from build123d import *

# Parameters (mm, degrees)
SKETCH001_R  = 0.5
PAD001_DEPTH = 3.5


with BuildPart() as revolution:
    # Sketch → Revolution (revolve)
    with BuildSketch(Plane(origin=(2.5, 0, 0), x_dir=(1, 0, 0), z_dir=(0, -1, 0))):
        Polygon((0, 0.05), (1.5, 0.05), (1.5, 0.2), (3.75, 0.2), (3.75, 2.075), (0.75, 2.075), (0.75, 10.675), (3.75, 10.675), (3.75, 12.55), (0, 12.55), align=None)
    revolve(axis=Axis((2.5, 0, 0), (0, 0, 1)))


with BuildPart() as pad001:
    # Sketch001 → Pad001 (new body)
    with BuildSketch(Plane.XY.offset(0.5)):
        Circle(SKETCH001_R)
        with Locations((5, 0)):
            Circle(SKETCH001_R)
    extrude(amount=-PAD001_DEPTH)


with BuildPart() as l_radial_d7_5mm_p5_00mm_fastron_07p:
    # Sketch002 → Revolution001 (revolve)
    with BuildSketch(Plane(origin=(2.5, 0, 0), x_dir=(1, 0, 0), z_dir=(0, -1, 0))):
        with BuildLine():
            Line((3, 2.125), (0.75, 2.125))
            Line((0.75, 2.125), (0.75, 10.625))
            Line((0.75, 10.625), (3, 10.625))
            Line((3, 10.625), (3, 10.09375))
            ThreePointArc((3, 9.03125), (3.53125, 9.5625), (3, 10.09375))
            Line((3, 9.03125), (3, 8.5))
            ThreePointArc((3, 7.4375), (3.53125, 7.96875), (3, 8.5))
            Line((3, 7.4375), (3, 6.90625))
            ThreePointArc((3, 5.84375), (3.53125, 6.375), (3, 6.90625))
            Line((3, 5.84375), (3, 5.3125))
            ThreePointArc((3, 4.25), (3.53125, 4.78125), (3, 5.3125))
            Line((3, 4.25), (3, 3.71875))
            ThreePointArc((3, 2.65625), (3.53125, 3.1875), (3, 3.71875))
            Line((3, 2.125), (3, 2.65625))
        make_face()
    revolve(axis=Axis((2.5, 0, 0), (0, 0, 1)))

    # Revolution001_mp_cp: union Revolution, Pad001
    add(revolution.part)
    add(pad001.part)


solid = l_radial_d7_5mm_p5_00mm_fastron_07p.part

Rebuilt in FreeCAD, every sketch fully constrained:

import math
import FreeCAD as App
import Part
import Sketcher
Q = App.Units.Quantity

doc = App.newDocument("Part")
body = doc.addObject("PartDesign::Body", "Body")

sketch1 = body.newObject("Sketcher::SketchObject", "Sketch")
sketch1.AttachmentSupport = (doc.getObject("XZ_Plane"), [""])
sketch1.MapMode = "FlatFace"
sketch1.addGeometry([
    Part.LineSegment(App.Vector(2.5, 0.05, 0), App.Vector(4, 0.05, 0)),
    Part.LineSegment(App.Vector(4, 0.05, 0), App.Vector(4, 0.2, 0)),
    Part.LineSegment(App.Vector(4, 0.2, 0), App.Vector(6.25, 0.2, 0)),
    Part.LineSegment(App.Vector(6.25, 0.2, 0), App.Vector(6.25, 2.075, 0)),
    Part.LineSegment(App.Vector(6.25, 2.075, 0), App.Vector(3.25, 2.075, 0)),
    Part.LineSegment(App.Vector(3.25, 2.075, 0), App.Vector(3.25, 10.675, 0)),
    Part.LineSegment(App.Vector(3.25, 10.675, 0), App.Vector(6.25, 10.675, 0)),
    Part.LineSegment(App.Vector(6.25, 10.675, 0), App.Vector(6.25, 12.55, 0)),
    Part.LineSegment(App.Vector(6.25, 12.55, 0), App.Vector(2.5, 12.55, 0)),
    Part.LineSegment(App.Vector(2.5, 12.55, 0), App.Vector(2.5, 0.05, 0)),
], False)
sketch1.addGeometry(Part.LineSegment(App.Vector(2.5, 0.05, 0), App.Vector(2.5, 12.55, 0)), True)
sketch1.addConstraint([
    Sketcher.Constraint("Coincident", 0, 2, 1, 1),
    Sketcher.Constraint("Coincident", 1, 2, 2, 1),
    Sketcher.Constraint("Coincident", 2, 2, 3, 1),
    Sketcher.Constraint("Coincident", 3, 2, 4, 1),
    Sketcher.Constraint("Coincident", 4, 2, 5, 1),
    Sketcher.Constraint("Coincident", 5, 2, 6, 1),
    Sketcher.Constraint("Coincident", 6, 2, 7, 1),
    Sketcher.Constraint("Coincident", 7, 2, 8, 1),
    Sketcher.Constraint("Coincident", 8, 2, 9, 1),
    Sketcher.Constraint("Coincident", 9, 2, 0, 1),
    Sketcher.Constraint("Horizontal", 0),
    Sketcher.Constraint("Vertical", 1),
    Sketcher.Constraint("Horizontal", 2),
    Sketcher.Constraint("Vertical", 3),
    Sketcher.Constraint("Horizontal", 4),
    Sketcher.Constraint("Vertical", 5),
    Sketcher.Constraint("Horizontal", 6),
    Sketcher.Constraint("Vertical", 7),
    Sketcher.Constraint("Horizontal", 8),
    Sketcher.Constraint("Vertical", 9),
    Sketcher.Constraint("Vertical", 10),
    Sketcher.Constraint("Coincident", 10, 1, 9, 2),
    Sketcher.Constraint("Horizontal", 7, 2, 10, 2),
    Sketcher.Constraint("Vertical", 3, 2, 6, 2),
    Sketcher.Constraint("Equal", 3, 7),
    Sketcher.Constraint("DistanceX", 4, 2, 4, 1, Q("3 mm")),
    Sketcher.Constraint("DistanceX", 0, 1, 0, 2, Q("1.5 mm")),
    Sketcher.Constraint("DistanceY", 5, 1, 5, 2, Q("8.6 mm")),
    Sketcher.Constraint("DistanceY", 9, 2, 9, 1, Q("12.5 mm")),
    Sketcher.Constraint("DistanceX", -1, 1, 0, 2, Q("4 mm")),
    Sketcher.Constraint("DistanceX", 2, 1, 2, 2, Q("2.25 mm")),
    Sketcher.Constraint("DistanceY", 1, 1, 1, 2, Q("0.15 mm")),
    Sketcher.Constraint("DistanceY", -1, 1, 1, 2, Q("0.2 mm")),
])
revolution = body.newObject("PartDesign::Revolution", "Revolution")
revolution.Profile = sketch1
revolution.ReferenceAxis = (sketch1, ["Axis0"])
revolution.Angle = 360
body2 = doc.addObject("PartDesign::Body", "Body001")
body2.AllowCompound = True

sketch2 = body2.newObject("Sketcher::SketchObject", "Sketch001")
sketch2.AttachmentSupport = (doc.getObject("XY_Plane001"), [""])
sketch2.MapMode = "FlatFace"
sketch2.AttachmentOffset = App.Placement(App.Vector(0, 0, 0.5), App.Rotation())
sketch2.addGeometry([
    Part.Circle(App.Vector(0, 0, 0), App.Vector(0, 0, 1), 0.5),
    Part.Circle(App.Vector(5, 0, 0), App.Vector(0, 0, 1), 0.5),
], False)
sketch2.addConstraint([
    Sketcher.Constraint("Coincident", 0, 3, -1, 1),
    Sketcher.Constraint("Equal", 0, 1),
    Sketcher.Constraint("PointOnObject", 1, 3, -1),
    Sketcher.Constraint("Diameter", 0, Q("1 mm")),
    Sketcher.Constraint("DistanceX", -1, 1, 1, 3, Q("5 mm")),
])
pad1 = body2.newObject("PartDesign::Pad", "Pad")
pad1.Profile = sketch2
pad1.Length = 3.5
pad1.Reversed = True
body3 = doc.addObject("PartDesign::Body", "Body002")

sketch3 = body3.newObject("Sketcher::SketchObject", "Sketch002")
sketch3.AttachmentSupport = (doc.getObject("XZ_Plane002"), [""])
sketch3.MapMode = "FlatFace"
sketch3.addGeometry([
    Part.LineSegment(App.Vector(3.25, 2.125, 0), App.Vector(5.5, 2.125, 0)),
    Part.LineSegment(App.Vector(5.5, 2.125, 0), App.Vector(5.5, 2.65625, 0)),
    Part.ArcOfCircle(Part.Circle(App.Vector(5.5, 3.1875, 0), App.Vector(0, 0, 1), 0.53125), math.radians(-90), math.radians(90)),
    Part.LineSegment(App.Vector(5.5, 3.71875, 0), App.Vector(5.5, 4.25, 0)),
    Part.ArcOfCircle(Part.Circle(App.Vector(5.5, 4.78125, 0), App.Vector(0, 0, 1), 0.53125), math.radians(-90), math.radians(90)),
    Part.LineSegment(App.Vector(5.5, 5.3125, 0), App.Vector(5.5, 5.84375, 0)),
    Part.ArcOfCircle(Part.Circle(App.Vector(5.5, 6.375, 0), App.Vector(0, 0, 1), 0.53125), math.radians(-90), math.radians(90)),
    Part.LineSegment(App.Vector(5.5, 6.90625, 0), App.Vector(5.5, 7.4375, 0)),
    Part.ArcOfCircle(Part.Circle(App.Vector(5.5, 7.96875, 0), App.Vector(0, 0, 1), 0.53125), math.radians(-90), math.radians(90)),
    Part.LineSegment(App.Vector(5.5, 8.5, 0), App.Vector(5.5, 9.03125, 0)),
    Part.ArcOfCircle(Part.Circle(App.Vector(5.5, 9.5625, 0), App.Vector(0, 0, 1), 0.53125), math.radians(-90), math.radians(90)),
    Part.LineSegment(App.Vector(5.5, 10.09375, 0), App.Vector(5.5, 10.625, 0)),
    Part.LineSegment(App.Vector(5.5, 10.625, 0), App.Vector(3.25, 10.625, 0)),
    Part.LineSegment(App.Vector(3.25, 10.625, 0), App.Vector(3.25, 2.125, 0)),
], False)
sketch3.addGeometry(Part.LineSegment(App.Vector(2.5, 2.125, 0), App.Vector(2.5, 10.625, 0)), True)
sketch3.addConstraint([
    Sketcher.Constraint("Coincident", 0, 2, 1, 1),
    Sketcher.Constraint("Coincident", 1, 2, 2, 1),
    Sketcher.Constraint("Coincident", 2, 2, 3, 1),
    Sketcher.Constraint("Coincident", 3, 2, 4, 1),
    Sketcher.Constraint("Coincident", 4, 2, 5, 1),
    Sketcher.Constraint("Coincident", 5, 2, 6, 1),
    Sketcher.Constraint("Coincident", 6, 2, 7, 1),
    Sketcher.Constraint("Coincident", 7, 2, 8, 1),
    Sketcher.Constraint("Coincident", 8, 2, 9, 1),
    Sketcher.Constraint("Coincident", 9, 2, 10, 1),
    Sketcher.Constraint("Coincident", 10, 2, 11, 1),
    Sketcher.Constraint("Coincident", 11, 2, 12, 1),
    Sketcher.Constraint("Coincident", 12, 2, 13, 1),
    Sketcher.Constraint("Coincident", 13, 2, 0, 1),
    Sketcher.Constraint("Horizontal", 0),
    Sketcher.Constraint("Vertical", 1),
    Sketcher.Constraint("Vertical", 3),
    Sketcher.Constraint("Vertical", 5),
    Sketcher.Constraint("Vertical", 7),
    Sketcher.Constraint("Vertical", 9),
    Sketcher.Constraint("Vertical", 11),
    Sketcher.Constraint("Horizontal", 12),
    Sketcher.Constraint("Vertical", 13),
    Sketcher.Constraint("Vertical", 14),
    Sketcher.Constraint("Equal", 2, 4),
    Sketcher.Constraint("Equal", 4, 6),
    Sketcher.Constraint("Equal", 6, 8),
    Sketcher.Constraint("Equal", 8, 10),
    Sketcher.Constraint("Horizontal", 13, 2, 14, 1),
    Sketcher.Constraint("Horizontal", 12, 2, 14, 2),
    Sketcher.Constraint("Vertical", 2, 3, 4, 3),
    Sketcher.Constraint("Vertical", 4, 3, 6, 3),
    Sketcher.Constraint("Vertical", 6, 3, 8, 3),
    Sketcher.Constraint("Vertical", 8, 3, 10, 3),
    Sketcher.Constraint("Vertical", 10, 3, 0, 2),
    Sketcher.Constraint("Vertical", 1, 2, 2, 2),
    Sketcher.Constraint("Vertical", 3, 2, 4, 2),
    Sketcher.Constraint("Vertical", 5, 2, 6, 2),
    Sketcher.Constraint("Vertical", 7, 2, 8, 2),
    Sketcher.Constraint("Vertical", 9, 2, 10, 2),
    Sketcher.Constraint("Equal", 1, 3),
    Sketcher.Constraint("Equal", 3, 5),
    Sketcher.Constraint("Equal", 5, 7),
    Sketcher.Constraint("Equal", 7, 9),
    Sketcher.Constraint("Equal", 9, 11),
    Sketcher.Constraint("DistanceY", 13, 2, 13, 1, Q("8.5 mm")),
    Sketcher.Constraint("DistanceX", 14, 1, 0, 2, Q("3 mm")),
    Sketcher.Constraint("DistanceX", 0, 1, 0, 2, Q("2.25 mm")),
    Sketcher.Constraint("DistanceX", -1, 1, 2, 3, Q("5.5 mm")),
    Sketcher.Constraint("DistanceY", -1, 1, 8, 2, Q("8.5 mm")),
    Sketcher.Constraint("DistanceY", -1, 1, 3, 2, Q("4.25 mm")),
])
revolution2 = body3.newObject("PartDesign::Revolution", "Revolution001")
revolution2.Profile = sketch3
revolution2.ReferenceAxis = (sketch3, ["Axis0"])
revolution2.Angle = 360
doc.recompute()

boolean = body3.newObject("PartDesign::Boolean", "Boolean")
boolean.Type = "Fuse"
boolean.addObjects([body])
doc.recompute()

boolean2 = body3.newObject("PartDesign::Boolean", "Boolean001")
boolean2.Type = "Fuse"
boolean2.addObjects([body2])

doc.recompute()
